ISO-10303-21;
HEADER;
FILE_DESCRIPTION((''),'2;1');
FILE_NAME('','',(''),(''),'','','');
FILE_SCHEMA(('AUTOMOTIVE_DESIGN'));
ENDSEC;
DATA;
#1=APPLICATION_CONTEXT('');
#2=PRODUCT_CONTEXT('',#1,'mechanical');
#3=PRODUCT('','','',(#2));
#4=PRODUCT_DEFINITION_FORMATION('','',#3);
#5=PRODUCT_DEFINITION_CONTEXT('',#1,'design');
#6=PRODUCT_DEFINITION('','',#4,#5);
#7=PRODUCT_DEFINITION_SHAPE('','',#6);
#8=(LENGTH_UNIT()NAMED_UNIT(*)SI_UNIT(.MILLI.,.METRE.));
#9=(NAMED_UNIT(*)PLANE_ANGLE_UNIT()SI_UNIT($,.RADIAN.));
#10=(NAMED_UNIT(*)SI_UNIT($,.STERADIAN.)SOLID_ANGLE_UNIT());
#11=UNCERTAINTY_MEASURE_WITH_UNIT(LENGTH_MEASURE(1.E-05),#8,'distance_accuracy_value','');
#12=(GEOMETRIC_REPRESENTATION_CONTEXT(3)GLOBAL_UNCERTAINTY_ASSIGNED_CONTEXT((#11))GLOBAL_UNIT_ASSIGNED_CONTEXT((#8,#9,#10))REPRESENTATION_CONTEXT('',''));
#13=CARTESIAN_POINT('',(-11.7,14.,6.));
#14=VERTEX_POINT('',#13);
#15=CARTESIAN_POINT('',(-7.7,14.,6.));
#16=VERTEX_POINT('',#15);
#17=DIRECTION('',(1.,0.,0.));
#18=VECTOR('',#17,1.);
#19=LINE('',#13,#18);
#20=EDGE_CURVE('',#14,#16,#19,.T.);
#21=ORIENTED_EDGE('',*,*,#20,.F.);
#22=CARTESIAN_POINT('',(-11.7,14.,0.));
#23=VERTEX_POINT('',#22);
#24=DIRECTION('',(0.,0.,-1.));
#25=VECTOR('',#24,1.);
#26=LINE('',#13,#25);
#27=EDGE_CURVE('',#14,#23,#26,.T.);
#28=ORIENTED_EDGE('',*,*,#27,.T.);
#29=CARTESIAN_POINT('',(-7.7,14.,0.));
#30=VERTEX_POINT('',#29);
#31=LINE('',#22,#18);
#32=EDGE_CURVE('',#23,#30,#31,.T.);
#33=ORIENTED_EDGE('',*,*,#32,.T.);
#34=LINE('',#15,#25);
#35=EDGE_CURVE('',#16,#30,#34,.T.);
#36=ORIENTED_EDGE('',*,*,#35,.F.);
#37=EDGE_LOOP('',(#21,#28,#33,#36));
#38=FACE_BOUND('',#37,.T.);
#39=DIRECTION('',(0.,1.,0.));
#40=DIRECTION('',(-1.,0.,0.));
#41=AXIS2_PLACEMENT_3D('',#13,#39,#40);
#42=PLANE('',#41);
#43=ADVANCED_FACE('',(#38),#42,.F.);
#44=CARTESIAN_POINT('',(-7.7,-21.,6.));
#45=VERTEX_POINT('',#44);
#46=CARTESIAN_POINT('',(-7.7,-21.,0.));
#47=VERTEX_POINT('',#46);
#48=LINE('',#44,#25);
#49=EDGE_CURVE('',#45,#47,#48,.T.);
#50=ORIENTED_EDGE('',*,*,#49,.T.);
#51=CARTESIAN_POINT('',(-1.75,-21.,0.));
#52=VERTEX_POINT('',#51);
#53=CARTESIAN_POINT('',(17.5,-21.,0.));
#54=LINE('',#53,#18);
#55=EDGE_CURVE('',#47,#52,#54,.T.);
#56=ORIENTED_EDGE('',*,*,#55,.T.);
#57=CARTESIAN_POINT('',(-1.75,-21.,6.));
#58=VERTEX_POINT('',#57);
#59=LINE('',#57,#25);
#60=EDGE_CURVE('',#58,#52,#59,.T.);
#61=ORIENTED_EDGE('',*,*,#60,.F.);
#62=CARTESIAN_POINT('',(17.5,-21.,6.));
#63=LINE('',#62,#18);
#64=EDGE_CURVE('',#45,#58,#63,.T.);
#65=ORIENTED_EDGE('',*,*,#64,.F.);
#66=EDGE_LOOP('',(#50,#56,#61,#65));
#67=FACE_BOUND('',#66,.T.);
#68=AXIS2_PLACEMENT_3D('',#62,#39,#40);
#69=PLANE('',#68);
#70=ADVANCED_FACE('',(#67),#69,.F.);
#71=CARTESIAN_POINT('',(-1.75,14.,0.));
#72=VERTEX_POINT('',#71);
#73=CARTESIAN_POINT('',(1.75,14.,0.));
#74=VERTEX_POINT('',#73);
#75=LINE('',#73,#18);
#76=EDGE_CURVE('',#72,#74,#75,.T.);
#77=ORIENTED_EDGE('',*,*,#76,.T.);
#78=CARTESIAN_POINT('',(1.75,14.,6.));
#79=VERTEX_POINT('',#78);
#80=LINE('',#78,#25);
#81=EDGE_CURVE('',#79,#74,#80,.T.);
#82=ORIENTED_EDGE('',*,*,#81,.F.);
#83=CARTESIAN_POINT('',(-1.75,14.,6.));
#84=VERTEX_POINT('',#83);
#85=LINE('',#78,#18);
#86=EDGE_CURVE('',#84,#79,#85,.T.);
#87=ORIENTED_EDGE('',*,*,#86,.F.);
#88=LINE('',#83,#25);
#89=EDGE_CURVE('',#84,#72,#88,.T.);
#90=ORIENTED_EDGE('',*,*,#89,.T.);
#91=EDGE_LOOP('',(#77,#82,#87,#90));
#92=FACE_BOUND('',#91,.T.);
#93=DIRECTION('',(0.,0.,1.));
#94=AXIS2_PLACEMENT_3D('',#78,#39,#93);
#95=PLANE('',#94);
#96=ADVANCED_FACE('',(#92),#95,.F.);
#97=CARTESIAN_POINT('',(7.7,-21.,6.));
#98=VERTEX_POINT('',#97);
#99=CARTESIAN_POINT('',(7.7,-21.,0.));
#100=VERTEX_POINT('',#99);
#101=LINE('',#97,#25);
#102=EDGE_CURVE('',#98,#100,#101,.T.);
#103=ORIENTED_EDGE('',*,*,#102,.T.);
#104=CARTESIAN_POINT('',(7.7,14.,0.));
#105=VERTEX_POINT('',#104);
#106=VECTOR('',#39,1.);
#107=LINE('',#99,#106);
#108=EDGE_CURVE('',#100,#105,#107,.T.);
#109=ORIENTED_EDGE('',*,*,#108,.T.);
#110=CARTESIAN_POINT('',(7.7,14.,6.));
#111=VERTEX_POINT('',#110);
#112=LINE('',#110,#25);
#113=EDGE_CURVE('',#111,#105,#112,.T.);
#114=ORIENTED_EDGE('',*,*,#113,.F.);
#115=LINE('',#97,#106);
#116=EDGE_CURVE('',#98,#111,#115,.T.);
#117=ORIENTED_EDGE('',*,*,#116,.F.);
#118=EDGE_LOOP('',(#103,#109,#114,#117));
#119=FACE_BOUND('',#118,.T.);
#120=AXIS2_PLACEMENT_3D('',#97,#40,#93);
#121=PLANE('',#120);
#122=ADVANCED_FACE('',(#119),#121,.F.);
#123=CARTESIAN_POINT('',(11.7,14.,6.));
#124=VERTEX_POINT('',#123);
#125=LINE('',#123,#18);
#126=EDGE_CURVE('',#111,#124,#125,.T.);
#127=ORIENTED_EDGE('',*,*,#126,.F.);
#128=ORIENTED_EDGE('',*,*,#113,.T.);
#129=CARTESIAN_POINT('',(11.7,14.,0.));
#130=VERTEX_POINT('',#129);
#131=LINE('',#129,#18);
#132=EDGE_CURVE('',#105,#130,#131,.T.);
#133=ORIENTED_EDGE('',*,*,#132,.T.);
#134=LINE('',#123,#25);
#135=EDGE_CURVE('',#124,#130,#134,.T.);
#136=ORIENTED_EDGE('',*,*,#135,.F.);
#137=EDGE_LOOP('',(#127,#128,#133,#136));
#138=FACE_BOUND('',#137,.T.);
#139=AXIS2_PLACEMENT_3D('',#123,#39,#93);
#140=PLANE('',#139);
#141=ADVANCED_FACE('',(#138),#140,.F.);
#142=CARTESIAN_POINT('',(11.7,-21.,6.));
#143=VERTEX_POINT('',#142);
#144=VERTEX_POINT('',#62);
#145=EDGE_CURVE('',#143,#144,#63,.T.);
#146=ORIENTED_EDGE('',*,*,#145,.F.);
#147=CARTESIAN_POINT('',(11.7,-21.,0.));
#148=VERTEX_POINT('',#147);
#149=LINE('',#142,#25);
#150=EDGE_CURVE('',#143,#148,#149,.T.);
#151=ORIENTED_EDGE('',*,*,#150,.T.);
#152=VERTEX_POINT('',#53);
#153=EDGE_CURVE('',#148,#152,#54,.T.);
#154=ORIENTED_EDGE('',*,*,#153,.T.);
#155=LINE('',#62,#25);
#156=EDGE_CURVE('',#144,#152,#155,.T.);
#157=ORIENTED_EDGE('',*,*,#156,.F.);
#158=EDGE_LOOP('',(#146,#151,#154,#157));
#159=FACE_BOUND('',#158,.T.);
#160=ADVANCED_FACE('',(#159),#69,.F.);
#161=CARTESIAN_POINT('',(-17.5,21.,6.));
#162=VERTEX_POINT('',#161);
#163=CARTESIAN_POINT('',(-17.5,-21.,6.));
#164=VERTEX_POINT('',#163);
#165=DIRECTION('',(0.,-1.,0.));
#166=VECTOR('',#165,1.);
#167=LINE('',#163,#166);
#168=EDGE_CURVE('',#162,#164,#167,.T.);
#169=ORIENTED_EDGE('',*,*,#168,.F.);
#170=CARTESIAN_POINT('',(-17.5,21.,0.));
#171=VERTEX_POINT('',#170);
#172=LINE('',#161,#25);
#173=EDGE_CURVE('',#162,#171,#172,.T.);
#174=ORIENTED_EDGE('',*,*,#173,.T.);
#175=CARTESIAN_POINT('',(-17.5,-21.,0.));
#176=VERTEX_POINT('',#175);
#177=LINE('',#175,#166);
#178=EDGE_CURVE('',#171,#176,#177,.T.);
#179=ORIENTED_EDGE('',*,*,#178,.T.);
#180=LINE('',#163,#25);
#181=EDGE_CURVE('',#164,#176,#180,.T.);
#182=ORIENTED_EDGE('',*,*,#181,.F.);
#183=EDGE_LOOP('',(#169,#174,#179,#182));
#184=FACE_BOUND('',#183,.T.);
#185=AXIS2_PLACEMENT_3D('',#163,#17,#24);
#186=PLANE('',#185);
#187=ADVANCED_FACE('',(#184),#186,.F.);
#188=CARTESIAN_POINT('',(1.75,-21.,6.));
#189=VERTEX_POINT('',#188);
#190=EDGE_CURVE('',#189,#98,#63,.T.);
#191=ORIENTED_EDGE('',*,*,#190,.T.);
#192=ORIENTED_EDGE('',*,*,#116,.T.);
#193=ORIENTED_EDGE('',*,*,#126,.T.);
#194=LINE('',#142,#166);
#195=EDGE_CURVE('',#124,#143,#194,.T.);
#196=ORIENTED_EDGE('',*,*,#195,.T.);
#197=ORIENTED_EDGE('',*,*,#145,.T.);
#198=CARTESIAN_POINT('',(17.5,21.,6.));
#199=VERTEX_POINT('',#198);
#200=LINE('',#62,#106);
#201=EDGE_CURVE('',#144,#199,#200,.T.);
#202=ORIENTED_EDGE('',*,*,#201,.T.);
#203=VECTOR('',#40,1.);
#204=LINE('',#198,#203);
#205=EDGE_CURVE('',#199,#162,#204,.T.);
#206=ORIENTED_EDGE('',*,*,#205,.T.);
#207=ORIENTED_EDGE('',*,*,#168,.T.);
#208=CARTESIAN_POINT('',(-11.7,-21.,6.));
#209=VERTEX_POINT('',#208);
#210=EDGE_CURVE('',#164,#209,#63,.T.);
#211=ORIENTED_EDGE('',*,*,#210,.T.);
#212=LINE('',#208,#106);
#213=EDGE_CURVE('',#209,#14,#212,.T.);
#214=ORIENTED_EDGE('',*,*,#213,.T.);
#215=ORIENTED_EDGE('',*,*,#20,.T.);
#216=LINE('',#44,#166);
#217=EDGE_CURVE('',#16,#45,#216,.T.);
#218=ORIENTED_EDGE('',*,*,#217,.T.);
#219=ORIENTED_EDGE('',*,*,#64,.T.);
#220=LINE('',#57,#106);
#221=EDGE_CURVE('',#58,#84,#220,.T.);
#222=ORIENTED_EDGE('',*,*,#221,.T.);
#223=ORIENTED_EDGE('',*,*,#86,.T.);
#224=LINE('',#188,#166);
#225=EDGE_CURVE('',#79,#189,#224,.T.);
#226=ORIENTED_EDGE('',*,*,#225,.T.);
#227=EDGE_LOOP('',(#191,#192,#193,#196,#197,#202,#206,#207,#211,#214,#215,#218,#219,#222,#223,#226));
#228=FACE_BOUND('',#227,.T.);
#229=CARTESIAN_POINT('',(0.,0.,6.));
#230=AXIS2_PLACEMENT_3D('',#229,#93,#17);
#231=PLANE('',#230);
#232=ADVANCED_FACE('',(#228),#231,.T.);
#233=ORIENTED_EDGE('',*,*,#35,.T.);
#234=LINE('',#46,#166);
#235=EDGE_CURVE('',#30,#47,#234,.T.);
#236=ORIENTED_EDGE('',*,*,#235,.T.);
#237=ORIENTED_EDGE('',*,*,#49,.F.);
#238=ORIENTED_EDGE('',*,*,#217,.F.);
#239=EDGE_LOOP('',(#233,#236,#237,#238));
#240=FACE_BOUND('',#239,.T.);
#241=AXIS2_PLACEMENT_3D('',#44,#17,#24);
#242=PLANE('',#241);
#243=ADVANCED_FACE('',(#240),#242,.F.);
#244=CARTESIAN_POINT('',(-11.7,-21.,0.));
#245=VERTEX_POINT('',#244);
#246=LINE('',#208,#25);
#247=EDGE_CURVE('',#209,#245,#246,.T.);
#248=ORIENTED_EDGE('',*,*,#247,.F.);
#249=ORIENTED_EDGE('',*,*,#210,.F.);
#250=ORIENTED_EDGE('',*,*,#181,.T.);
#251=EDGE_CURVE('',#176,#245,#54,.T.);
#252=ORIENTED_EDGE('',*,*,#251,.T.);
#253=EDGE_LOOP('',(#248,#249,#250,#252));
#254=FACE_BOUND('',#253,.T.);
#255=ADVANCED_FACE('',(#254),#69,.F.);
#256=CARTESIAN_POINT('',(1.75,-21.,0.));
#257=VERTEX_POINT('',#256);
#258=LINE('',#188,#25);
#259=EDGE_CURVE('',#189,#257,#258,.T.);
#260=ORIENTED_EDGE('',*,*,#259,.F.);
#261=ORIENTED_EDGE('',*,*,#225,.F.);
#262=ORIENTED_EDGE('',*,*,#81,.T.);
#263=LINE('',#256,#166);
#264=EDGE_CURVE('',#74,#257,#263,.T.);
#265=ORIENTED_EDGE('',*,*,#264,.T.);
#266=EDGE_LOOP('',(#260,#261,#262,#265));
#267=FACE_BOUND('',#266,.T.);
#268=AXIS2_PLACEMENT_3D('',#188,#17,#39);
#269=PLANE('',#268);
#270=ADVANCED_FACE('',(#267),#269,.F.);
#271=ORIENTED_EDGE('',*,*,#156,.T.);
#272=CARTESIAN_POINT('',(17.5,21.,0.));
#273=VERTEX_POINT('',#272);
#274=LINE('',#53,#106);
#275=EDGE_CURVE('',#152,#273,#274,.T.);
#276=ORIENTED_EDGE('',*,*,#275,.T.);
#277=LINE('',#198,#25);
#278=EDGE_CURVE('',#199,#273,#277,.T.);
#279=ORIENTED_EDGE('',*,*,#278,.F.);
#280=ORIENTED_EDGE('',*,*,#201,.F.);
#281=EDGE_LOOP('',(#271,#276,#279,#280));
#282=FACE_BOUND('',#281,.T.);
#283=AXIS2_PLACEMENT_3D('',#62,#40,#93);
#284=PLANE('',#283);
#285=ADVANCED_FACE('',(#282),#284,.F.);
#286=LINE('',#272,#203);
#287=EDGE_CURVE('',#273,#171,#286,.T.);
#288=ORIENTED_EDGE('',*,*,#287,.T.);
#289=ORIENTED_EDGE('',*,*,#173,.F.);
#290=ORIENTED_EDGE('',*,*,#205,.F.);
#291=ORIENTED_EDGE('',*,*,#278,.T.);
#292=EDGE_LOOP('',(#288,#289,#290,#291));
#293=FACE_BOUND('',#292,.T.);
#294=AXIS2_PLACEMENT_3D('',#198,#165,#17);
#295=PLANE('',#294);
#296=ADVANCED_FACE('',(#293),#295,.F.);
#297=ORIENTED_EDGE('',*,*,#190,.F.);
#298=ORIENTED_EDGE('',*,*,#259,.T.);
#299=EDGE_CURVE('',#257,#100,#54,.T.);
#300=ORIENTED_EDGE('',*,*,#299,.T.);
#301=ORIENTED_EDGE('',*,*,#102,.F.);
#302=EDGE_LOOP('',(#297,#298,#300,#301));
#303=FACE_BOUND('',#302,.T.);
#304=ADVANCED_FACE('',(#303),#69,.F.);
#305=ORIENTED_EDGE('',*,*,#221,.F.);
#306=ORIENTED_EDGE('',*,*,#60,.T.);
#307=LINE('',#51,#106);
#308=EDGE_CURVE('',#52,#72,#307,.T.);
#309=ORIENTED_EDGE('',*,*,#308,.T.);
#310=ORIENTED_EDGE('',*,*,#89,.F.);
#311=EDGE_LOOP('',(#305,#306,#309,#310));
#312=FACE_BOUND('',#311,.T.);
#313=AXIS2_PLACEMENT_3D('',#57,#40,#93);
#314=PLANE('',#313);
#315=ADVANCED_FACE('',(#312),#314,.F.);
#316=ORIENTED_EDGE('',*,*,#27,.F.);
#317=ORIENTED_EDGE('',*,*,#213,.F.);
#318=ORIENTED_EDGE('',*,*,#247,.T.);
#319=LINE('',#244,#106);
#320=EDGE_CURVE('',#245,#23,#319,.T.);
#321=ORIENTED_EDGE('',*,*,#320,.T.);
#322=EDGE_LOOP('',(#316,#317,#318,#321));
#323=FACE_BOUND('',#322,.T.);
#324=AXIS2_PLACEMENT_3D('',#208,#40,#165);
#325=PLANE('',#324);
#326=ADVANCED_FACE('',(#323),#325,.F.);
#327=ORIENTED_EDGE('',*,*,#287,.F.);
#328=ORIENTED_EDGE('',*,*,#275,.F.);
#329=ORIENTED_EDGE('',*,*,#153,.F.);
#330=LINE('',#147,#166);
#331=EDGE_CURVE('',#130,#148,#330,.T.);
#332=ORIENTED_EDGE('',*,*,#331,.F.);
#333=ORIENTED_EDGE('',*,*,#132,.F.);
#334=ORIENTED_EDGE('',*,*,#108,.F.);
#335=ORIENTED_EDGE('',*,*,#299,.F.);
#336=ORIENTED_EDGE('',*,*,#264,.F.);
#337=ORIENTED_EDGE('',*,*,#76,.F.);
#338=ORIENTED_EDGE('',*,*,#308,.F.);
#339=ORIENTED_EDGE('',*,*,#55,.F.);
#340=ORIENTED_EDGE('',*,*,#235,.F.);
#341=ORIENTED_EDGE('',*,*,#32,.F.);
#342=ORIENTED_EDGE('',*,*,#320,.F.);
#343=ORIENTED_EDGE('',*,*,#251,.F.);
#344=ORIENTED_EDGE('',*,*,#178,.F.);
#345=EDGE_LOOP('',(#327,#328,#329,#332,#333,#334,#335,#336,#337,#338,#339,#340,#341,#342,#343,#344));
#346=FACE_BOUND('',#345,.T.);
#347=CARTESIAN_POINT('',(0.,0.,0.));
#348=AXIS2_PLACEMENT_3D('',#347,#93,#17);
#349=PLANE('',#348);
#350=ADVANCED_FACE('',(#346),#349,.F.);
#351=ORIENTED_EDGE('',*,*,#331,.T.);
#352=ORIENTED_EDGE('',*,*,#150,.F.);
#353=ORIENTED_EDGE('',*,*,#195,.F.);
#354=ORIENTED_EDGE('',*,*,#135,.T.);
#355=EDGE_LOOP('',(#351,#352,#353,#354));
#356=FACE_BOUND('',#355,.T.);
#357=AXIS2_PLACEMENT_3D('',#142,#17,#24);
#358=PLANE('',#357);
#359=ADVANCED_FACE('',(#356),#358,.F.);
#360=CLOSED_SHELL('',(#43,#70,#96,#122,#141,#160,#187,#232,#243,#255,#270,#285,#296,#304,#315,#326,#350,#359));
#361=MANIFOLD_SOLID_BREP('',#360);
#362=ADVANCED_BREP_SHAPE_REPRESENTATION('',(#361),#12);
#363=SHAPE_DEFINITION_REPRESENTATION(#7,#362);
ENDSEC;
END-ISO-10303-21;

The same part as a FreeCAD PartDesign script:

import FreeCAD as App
import Part
import Sketcher

V = App.Vector
Q = App.Units.Quantity

doc = App.newDocument("Part")
params = doc.addObject("Spreadsheet::Sheet", "Params")
for row, (alias, value) in enumerate([
    ("sketch1_width", "35 mm"),
    ("sketch1_height", "42 mm"),
    ("pad1_length", "6 mm"),
    ("sketch2_width", "4 mm"),
    ("sketch2_height", "35 mm"),
    ("sketch2_width2", "3.5 mm"),
    ("pocket1_length", "6 mm"),
], start=1):
    params.set(f"A{row}", alias)
    params.set(f"B{row}", "=" + value)
    params.setAlias(f"B{row}", alias)

body = doc.addObject("PartDesign::Body", "Body")

sketch1 = doc.addObject("Sketcher::SketchObject", "Sketch")
body.addObject(sketch1)
sketch1.AttachmentSupport = (doc.XY_Plane, [""])
sketch1.MapMode = "FlatFace"
sketch1.addGeometry([
    Part.LineSegment(V(-18, 21, 0), V(-18, -21, 0)),
    Part.LineSegment(V(-18, -21, 0), V(18, -21, 0)),
    Part.LineSegment(V(18, -21, 0), V(18, 21, 0)),
    Part.LineSegment(V(18, 21, 0), V(-18, 21, 0)),
], False)
sketch1.addConstraint([
    Sketcher.Constraint("Coincident", 0, 2, 1, 1),
    Sketcher.Constraint("Coincident", 1, 2, 2, 1),
    Sketcher.Constraint("Coincident", 2, 2, 3, 1),
    Sketcher.Constraint("Coincident", 3, 2, 0, 1),
    Sketcher.Constraint("Vertical", 0),
    Sketcher.Constraint("Horizontal", 1),
    Sketcher.Constraint("Vertical", 2),
    Sketcher.Constraint("Horizontal", 3),
    Sketcher.Constraint("Symmetric", 0, 2, 2, 2, -1, 1),
    Sketcher.Constraint("DistanceX", 1, 1, 1, 2, Q("35 mm")),
    Sketcher.Constraint("DistanceY", 0, 2, 0, 1, Q("42 mm")),
])
sketch1.setExpression("Constraints[9]", "Params.sketch1_width")
sketch1.setExpression("Constraints[10]", "Params.sketch1_height")
pad1 = doc.addObject("PartDesign::Pad", "Pad")
body.addObject(pad1)
pad1.Profile = sketch1
pad1.setExpression("Length", "Params.pad1_length")

sketch2 = doc.addObject("Sketcher::SketchObject", "Sketch001")
body.addObject(sketch2)
sketch2.AttachmentSupport = (doc.XY_Plane, [""])
sketch2.MapMode = "FlatFace"
sketch2.addGeometry([
    Part.LineSegment(V(11.7, 14, 0), V(11.7, -21, 0)),
    Part.LineSegment(V(11.7, -21, 0), V(7.7, -21, 0)),
    Part.LineSegment(V(7.7, -21, 0), V(7.7, 14, 0)),
    Part.LineSegment(V(7.7, 14, 0), V(11.7, 14, 0)),
    Part.LineSegment(V(-7.7, 14, 0), V(-7.7, -21, 0)),
    Part.LineSegment(V(-7.7, -21, 0), V(-11.7, -21, 0)),
    Part.LineSegment(V(-11.7, -21, 0), V(-11.7, 14, 0)),
    Part.LineSegment(V(-11.7, 14, 0), V(-7.7, 14, 0)),
    Part.LineSegment(V(1.8, 14, 0), V(1.8, -21, 0)),
    Part.LineSegment(V(1.8, -21, 0), V(-1.8, -21, 0)),
    Part.LineSegment(V(-1.8, -21, 0), V(-1.8, 14, 0)),
    Part.LineSegment(V(-1.8, 14, 0), V(1.8, 14, 0)),
], False)
sketch2.addConstraint([
    Sketcher.Constraint("Coincident", 0, 2, 1, 1),
    Sketcher.Constraint("Coincident", 1, 2, 2, 1),
    Sketcher.Constraint("Coincident", 2, 2, 3, 1),
    Sketcher.Constraint("Coincident", 3, 2, 0, 1),
    Sketcher.Constraint("Coincident", 4, 2, 5, 1),
    Sketcher.Constraint("Coincident", 5, 2, 6, 1),
    Sketcher.Constraint("Coincident", 6, 2, 7, 1),
    Sketcher.Constraint("Coincident", 7, 2, 4, 1),
    Sketcher.Constraint("Coincident", 8, 2, 9, 1),
    Sketcher.Constraint("Coincident", 9, 2, 10, 1),
    Sketcher.Constraint("Coincident", 10, 2, 11, 1),
    Sketcher.Constraint("Coincident", 11, 2, 8, 1),
    Sketcher.Constraint("Vertical", 0),
    Sketcher.Constraint("Horizontal", 1),
    Sketcher.Constraint("Vertical", 2),
    Sketcher.Constraint("Horizontal", 3),
    Sketcher.Constraint("Vertical", 4),
    Sketcher.Constraint("Horizontal", 5),
    Sketcher.Constraint("Vertical", 6),
    Sketcher.Constraint("Horizontal", 7),
    Sketcher.Constraint("Vertical", 8),
    Sketcher.Constraint("Horizontal", 9),
    Sketcher.Constraint("Vertical", 10),
    Sketcher.Constraint("Horizontal", 11),
    Sketcher.Constraint("Symmetric", 1, 2, 4, 2, -2),
    Sketcher.Constraint("Symmetric", 3, 2, 6, 2, -2),
    Sketcher.Constraint("Horizontal", 5, 2, 8, 2),
    Sketcher.Constraint("Horizontal", 7, 2, 10, 2),
    Sketcher.Constraint("DistanceX", 1, 2, 1, 1, Q("4 mm")),
    Sketcher.Constraint("DistanceY", 0, 2, 0, 1, Q("35 mm")),
    Sketcher.Constraint("DistanceX", 9, 2, 9, 1, Q("3.5 mm")),
    Sketcher.Constraint("DistanceY", 0, 2, -1, 1, Q("21 mm")),
    Sketcher.Constraint("DistanceX", -1, 1, 0, 2, Q("11.7 mm")),
    Sketcher.Constraint("DistanceX", -1, 1, 8, 2, Q("1.75 mm")),
])
sketch2.setExpression("Constraints[28]", "Params.sketch2_width")
sketch2.setExpression("Constraints[29]", "Params.sketch2_height")
sketch2.setExpression("Constraints[30]", "Params.sketch2_width2")
pocket1 = doc.addObject("PartDesign::Pocket", "Pocket")
body.addObject(pocket1)
pocket1.Profile = sketch2
pocket1.setExpression("Length", "Params.pocket1_length")
pocket1.Reversed = True

doc.recompute()
